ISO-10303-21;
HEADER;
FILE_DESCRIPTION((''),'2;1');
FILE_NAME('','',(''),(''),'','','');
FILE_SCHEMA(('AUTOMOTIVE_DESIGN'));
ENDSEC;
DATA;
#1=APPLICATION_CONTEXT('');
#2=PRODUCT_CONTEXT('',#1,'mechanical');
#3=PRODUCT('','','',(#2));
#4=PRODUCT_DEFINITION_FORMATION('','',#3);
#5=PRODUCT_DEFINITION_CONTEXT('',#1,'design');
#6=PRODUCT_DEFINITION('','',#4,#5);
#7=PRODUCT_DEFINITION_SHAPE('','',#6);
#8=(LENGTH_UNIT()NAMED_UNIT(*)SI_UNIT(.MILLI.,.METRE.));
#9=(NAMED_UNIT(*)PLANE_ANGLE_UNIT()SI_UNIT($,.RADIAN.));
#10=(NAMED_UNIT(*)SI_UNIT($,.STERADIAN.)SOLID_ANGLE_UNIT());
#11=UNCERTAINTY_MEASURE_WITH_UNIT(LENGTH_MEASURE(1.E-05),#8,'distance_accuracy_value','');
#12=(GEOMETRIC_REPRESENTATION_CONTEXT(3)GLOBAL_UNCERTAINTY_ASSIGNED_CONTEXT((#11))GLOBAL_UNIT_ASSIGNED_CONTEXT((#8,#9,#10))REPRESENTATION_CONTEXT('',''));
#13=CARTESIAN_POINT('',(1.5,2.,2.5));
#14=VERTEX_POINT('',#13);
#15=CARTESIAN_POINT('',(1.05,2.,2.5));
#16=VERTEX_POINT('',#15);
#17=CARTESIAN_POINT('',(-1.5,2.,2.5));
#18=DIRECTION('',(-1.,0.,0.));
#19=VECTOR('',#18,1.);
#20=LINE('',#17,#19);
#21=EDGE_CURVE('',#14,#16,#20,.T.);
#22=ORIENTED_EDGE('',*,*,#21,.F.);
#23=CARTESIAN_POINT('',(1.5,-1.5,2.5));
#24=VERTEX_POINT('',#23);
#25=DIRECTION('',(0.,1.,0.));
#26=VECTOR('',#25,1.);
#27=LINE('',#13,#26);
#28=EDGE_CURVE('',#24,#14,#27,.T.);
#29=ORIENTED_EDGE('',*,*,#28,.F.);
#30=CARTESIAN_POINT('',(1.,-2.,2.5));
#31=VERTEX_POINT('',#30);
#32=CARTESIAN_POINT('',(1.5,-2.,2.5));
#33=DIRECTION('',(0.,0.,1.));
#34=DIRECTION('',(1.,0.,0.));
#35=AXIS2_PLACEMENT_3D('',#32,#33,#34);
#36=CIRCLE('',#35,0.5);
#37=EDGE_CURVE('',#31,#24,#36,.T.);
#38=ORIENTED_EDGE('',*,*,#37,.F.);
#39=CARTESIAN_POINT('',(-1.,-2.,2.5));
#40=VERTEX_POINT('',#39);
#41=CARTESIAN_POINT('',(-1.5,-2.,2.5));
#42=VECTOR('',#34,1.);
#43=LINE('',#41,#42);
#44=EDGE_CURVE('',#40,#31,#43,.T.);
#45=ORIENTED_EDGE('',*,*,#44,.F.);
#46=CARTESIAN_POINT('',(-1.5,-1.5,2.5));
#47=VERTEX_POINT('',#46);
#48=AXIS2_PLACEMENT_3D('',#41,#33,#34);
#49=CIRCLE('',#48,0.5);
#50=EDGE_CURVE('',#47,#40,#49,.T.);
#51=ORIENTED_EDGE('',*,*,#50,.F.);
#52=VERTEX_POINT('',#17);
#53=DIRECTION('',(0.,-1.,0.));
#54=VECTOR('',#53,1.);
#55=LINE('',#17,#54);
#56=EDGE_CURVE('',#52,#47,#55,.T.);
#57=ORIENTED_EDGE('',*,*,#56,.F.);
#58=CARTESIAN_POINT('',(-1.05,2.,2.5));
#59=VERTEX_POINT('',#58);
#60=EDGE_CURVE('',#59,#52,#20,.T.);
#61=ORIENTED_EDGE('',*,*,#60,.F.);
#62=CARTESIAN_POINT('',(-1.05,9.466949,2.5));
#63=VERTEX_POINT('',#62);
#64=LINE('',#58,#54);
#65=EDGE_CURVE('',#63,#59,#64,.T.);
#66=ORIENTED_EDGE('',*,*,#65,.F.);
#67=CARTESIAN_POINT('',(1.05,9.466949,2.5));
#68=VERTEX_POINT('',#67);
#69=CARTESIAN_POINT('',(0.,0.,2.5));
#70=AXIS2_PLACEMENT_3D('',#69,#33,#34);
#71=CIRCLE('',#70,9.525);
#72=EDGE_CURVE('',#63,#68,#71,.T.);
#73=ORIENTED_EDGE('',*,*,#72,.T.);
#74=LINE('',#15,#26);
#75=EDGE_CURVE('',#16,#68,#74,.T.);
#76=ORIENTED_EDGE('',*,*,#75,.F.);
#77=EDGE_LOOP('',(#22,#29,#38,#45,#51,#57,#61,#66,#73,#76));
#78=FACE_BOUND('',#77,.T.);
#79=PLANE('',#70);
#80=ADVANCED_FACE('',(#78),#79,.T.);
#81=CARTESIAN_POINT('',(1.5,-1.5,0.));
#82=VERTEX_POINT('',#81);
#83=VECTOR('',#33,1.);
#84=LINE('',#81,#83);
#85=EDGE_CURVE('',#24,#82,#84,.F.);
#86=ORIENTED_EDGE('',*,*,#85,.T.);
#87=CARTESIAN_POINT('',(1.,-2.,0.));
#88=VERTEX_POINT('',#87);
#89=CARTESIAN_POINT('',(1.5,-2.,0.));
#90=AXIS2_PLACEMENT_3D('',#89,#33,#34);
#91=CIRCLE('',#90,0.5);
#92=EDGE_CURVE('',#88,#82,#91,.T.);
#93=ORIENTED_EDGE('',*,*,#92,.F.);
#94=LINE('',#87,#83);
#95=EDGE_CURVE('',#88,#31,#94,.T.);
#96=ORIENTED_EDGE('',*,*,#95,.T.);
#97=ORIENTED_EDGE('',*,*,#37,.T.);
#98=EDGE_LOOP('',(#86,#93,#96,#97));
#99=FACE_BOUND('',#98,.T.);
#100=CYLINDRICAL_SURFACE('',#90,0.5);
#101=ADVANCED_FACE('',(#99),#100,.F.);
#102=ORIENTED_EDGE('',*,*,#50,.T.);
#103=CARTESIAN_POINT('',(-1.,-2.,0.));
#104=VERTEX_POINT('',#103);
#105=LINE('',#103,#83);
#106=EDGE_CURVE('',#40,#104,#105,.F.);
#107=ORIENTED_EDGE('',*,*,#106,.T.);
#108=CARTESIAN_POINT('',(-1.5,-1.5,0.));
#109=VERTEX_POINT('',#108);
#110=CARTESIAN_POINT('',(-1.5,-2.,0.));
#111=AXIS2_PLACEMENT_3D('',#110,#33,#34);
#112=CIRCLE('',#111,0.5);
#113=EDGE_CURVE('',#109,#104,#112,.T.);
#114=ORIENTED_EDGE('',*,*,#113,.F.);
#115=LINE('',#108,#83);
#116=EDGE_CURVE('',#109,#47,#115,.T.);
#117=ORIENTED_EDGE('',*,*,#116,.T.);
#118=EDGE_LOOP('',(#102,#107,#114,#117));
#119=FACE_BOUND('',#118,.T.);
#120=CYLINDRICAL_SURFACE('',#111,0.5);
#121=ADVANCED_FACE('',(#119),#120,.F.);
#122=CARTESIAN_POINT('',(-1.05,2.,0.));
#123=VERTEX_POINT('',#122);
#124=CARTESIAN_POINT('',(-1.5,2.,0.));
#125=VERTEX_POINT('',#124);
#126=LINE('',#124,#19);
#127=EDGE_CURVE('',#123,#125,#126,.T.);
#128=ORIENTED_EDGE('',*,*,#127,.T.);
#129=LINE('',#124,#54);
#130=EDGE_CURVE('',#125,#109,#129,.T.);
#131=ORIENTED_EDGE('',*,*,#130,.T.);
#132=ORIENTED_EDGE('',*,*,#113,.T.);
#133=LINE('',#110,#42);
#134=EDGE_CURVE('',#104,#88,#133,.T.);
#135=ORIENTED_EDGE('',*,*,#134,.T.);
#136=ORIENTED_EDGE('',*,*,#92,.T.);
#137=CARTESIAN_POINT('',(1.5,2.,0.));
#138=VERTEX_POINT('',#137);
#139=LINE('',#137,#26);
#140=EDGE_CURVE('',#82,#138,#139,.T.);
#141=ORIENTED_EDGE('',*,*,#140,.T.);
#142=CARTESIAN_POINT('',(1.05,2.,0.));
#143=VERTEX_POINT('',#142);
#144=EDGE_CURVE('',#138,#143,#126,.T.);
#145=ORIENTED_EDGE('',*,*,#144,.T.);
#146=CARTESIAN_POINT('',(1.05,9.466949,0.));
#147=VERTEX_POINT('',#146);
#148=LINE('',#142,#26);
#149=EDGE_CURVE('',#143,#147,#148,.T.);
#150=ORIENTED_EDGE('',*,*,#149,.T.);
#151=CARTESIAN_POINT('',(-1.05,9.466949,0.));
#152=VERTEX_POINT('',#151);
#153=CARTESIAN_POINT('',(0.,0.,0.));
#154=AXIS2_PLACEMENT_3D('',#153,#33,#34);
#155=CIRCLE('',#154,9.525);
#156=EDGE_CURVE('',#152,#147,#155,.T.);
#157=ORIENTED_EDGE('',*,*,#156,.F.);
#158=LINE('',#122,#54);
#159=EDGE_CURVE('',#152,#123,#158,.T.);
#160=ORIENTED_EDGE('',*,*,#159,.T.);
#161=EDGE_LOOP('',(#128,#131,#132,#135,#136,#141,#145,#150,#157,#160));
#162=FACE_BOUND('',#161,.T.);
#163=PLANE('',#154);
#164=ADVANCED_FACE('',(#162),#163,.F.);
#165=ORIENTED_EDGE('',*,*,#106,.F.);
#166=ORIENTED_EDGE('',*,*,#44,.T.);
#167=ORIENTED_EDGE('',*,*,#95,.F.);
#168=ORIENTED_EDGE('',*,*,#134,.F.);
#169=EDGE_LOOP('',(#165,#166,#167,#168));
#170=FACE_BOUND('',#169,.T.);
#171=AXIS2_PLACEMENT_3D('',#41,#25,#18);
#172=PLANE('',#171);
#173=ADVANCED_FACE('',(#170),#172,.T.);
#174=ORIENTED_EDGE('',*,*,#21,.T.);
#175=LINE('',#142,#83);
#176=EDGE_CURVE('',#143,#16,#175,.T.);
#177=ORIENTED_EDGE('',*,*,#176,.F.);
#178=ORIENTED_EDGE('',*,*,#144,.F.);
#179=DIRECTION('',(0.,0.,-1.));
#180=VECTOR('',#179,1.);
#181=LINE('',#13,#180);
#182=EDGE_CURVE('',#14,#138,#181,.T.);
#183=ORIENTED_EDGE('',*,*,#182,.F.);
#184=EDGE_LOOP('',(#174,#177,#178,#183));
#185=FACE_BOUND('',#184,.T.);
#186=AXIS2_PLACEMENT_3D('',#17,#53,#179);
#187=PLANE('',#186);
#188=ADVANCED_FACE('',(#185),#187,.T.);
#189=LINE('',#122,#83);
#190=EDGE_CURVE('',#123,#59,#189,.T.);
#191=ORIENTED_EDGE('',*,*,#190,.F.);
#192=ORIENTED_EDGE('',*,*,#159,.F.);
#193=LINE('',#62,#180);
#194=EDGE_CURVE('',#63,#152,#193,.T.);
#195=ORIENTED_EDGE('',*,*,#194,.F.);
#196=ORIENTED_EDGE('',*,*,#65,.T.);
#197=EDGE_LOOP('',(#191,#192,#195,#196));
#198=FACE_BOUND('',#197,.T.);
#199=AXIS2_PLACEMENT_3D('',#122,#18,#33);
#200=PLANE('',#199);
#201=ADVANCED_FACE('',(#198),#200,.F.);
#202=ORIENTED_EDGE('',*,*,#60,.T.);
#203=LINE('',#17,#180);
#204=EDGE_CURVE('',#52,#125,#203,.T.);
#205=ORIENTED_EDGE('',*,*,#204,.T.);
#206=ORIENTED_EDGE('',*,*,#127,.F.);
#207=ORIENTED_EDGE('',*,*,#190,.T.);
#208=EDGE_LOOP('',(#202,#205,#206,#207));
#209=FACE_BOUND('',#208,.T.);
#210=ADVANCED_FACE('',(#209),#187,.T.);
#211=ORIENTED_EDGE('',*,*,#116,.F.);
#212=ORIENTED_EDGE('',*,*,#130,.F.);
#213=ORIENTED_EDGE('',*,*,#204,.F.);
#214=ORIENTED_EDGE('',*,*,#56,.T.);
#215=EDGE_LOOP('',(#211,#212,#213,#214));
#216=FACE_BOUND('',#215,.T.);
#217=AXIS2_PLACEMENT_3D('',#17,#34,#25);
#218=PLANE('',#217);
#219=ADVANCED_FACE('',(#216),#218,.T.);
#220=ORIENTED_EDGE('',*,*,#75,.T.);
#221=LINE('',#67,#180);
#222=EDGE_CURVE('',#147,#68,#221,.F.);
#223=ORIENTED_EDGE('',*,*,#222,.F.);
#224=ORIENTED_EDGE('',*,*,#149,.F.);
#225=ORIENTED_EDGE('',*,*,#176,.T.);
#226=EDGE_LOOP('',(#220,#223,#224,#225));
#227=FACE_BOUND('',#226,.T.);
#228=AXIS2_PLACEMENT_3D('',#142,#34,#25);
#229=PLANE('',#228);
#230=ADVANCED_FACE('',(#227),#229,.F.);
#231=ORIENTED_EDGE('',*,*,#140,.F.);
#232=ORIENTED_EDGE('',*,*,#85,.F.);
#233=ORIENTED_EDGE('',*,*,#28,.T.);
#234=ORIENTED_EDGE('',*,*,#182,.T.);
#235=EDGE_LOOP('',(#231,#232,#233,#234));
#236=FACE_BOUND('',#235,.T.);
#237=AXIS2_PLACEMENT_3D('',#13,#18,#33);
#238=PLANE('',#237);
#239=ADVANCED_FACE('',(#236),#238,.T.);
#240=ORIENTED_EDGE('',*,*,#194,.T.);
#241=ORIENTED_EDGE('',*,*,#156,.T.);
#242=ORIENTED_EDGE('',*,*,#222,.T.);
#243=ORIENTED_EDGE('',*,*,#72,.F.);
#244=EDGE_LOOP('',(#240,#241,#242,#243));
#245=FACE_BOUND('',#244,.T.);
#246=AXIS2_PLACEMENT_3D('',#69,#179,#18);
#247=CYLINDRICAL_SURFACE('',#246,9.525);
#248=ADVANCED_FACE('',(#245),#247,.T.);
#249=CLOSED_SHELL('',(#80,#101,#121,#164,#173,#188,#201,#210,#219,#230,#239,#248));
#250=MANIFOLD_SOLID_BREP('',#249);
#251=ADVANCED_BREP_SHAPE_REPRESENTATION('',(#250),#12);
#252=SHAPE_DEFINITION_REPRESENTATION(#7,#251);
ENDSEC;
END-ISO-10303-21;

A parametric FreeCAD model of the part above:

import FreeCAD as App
import Part
import Sketcher

V = App.Vector

doc = App.newDocument("Part")
params = doc.addObject("Spreadsheet::Sheet", "Params")
for row, (alias, value) in enumerate([
    ("sketch1_diameter", "19.05 mm"),
    ("sketch1_width", "3 mm"),
    ("sketch1_height", "4 mm"),
    ("pad1_length", "2.5 mm"),
    ("sketch2_diameter", "1 mm"),
    ("sketch2_width", "2.1 mm"),
], start=1):
    params.set(f"A{row}", alias)
    params.set(f"B{row}", "=" + value)
    params.setAlias(f"B{row}", alias)

body = doc.addObject("PartDesign::Body", "Body")

sketch1 = body.newObject("Sketcher::SketchObject", "Sketch")
sketch1.AttachmentSupport = (doc.getObject("XY_Plane"), [""])
sketch1.MapMode = "FlatFace"
sketch1.addGeometry(Part.Circle(V(0, 0, 0), V(0, 0, 1), 9.5), False)
sketch1.addGeometry(Part.LineSegment(V(1.5, -2, 0), V(-1.5, -2, 0)), False)
sketch1.addGeometry(Part.LineSegment(V(-1.5, -2, 0), V(-1.5, 2, 0)), False)
sketch1.addGeometry(Part.LineSegment(V(-1.5, 2, 0), V(1.5, 2, 0)), False)
sketch1.addGeometry(Part.LineSegment(V(1.5, 2, 0), V(1.5, -2, 0)), False)
sketch1.addConstraint(Sketcher.Constraint("Coincident", 1, 2, 2, 1))
sketch1.addConstraint(Sketcher.Constraint("Coincident", 2, 2, 3, 1))
sketch1.addConstraint(Sketcher.Constraint("Coincident", 3, 2, 4, 1))
sketch1.addConstraint(Sketcher.Constraint("Coincident", 4, 2, 1, 1))
sketch1.addConstraint(Sketcher.Constraint("Horizontal", 1))
sketch1.addConstraint(Sketcher.Constraint("Vertical", 2))
sketch1.addConstraint(Sketcher.Constraint("Horizontal", 3))
sketch1.addConstraint(Sketcher.Constraint("Vertical", 4))
sketch1.addConstraint(Sketcher.Constraint("Coincident", 0, 3, -1, 1))
sketch1.addConstraint(Sketcher.Constraint("Symmetric", 1, 2, 3, 2, -1, 1))
sketch1.addConstraint(Sketcher.Constraint("Diameter", 0, 19.05))
sketch1.addConstraint(Sketcher.Constraint("DistanceX", 1, 2, 1, 1, 3.0))
sketch1.addConstraint(Sketcher.Constraint("DistanceY", 2, 1, 2, 2, 4.0))
sketch1.setExpression("Constraints[10]", "Params.sketch1_diameter")
sketch1.setExpression("Constraints[11]", "Params.sketch1_width")
sketch1.setExpression("Constraints[12]", "Params.sketch1_height")
pad1 = body.newObject("PartDesign::Pad", "Pad")
pad1.Profile = sketch1
pad1.setExpression("Length", "Params.pad1_length")

sketch2 = body.newObject("Sketcher::SketchObject", "Sketch001")
sketch2.AttachmentSupport = (doc.getObject("XY_Plane"), [""])
sketch2.MapMode = "FlatFace"
sketch2.AttachmentOffset = App.Placement(V(0, 0, 2.5), App.Rotation())
sketch2.addGeometry(Part.Circle(V(-1.5, -2, 0), V(0, 0, 1), 0.5), False)
sketch2.addGeometry(Part.Circle(V(1.5, -2, 0), V(0, 0, 1), 0.5), False)
sketch2.addGeometry(Part.LineSegment(V(-1.1, 9.5, 0), V(-1.1, 2, 0)), False)
sketch2.addGeometry(Part.LineSegment(V(-1.1, 2, 0), V(1.1, 2, 0)), False)
sketch2.addGeometry(Part.LineSegment(V(1.1, 2, 0), V(1.1, 9.5, 0)), False)
sketch2.addGeometry(Part.LineSegment(V(1.1, 9.5, 0), V(-1.1, 9.5, 0)), False)
sketch2.addConstraint(Sketcher.Constraint("Coincident", 2, 2, 3, 1))
sketch2.addConstraint(Sketcher.Constraint("Coincident", 3, 2, 4, 1))
sketch2.addConstraint(Sketcher.Constraint("Coincident", 4, 2, 5, 1))
sketch2.addConstraint(Sketcher.Constraint("Coincident", 5, 2, 2, 1))
sketch2.addConstraint(Sketcher.Constraint("Vertical", 2))
sketch2.addConstraint(Sketcher.Constraint("Horizontal", 3))
sketch2.addConstraint(Sketcher.Constraint("Vertical", 4))
sketch2.addConstraint(Sketcher.Constraint("Horizontal", 5))
sketch2.addConstraint(Sketcher.Constraint("Equal", 0, 1))
sketch2.addConstraint(Sketcher.Constraint("Symmetric", 0, 3, 1, 3, -2))
sketch2.addConstraint(Sketcher.Constraint("Diameter", 0, 1.0))
sketch2.addConstraint(Sketcher.Constraint("DistanceX", 3, 1, 3, 2, 2.1))
sketch2.addConstraint(Sketcher.Constraint("DistanceY", 0, 3, -1, 1, 2.0))
sketch2.addConstraint(Sketcher.Constraint("DistanceY", -1, 1, 2, 2, 2.0))
sketch2.addConstraint(Sketcher.Constraint("DistanceX", 0, 3, 1, 3, 3.0))
sketch2.addConstraint(Sketcher.Constraint("DistanceY", 2, 2, 2, 1, 7.525))
sketch2.addConstraint(Sketcher.Constraint("DistanceX", 2, 2, -1, 1, 1.05))
sketch2.setExpression("Constraints[10]", "Params.sketch2_diameter")
sketch2.setExpression("Constraints[11]", "Params.sketch2_width")
pocket1 = body.newObject("PartDesign::Pocket", "Pocket")
pocket1.Profile = sketch2
pocket1.Type = "ThroughAll"

doc.recompute()
